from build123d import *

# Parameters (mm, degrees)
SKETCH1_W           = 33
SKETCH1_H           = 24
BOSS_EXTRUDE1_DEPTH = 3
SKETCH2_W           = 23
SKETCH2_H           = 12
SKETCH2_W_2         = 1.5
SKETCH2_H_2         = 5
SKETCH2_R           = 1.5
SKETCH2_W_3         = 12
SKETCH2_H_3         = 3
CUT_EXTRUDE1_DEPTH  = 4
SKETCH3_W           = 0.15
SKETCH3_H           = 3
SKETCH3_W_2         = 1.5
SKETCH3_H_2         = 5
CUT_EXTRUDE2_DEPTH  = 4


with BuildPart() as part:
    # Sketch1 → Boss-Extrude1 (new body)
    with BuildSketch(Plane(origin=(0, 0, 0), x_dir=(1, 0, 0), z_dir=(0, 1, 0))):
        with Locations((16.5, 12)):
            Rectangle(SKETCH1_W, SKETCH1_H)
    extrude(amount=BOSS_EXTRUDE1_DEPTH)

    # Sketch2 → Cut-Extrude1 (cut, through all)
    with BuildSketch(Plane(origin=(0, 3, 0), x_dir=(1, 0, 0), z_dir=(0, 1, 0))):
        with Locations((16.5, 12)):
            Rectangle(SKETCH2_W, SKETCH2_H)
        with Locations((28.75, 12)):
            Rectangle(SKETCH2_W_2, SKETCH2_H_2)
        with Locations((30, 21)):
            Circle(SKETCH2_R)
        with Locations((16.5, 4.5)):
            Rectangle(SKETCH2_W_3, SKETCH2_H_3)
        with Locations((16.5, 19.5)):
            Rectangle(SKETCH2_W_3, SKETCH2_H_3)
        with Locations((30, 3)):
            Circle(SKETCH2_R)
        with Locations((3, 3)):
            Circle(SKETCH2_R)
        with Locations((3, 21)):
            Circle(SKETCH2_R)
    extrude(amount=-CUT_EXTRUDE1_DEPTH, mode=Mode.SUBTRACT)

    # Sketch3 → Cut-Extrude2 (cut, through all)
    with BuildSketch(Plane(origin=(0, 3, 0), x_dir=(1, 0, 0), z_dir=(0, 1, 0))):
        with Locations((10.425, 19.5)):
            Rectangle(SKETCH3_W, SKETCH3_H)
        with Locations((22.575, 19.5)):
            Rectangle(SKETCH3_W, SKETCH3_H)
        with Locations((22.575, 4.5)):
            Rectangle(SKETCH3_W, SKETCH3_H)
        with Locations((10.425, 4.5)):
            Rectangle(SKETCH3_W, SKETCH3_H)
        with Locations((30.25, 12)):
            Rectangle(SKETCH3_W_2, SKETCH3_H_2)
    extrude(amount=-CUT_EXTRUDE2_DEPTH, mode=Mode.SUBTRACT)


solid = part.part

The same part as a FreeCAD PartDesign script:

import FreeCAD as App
import Part
import Sketcher
from FreeCAD import Vector
Q = App.Units.Quantity


def add_polygon(sketch, points):
    """Adds a closed chain of lines whose ends are joined by coincident constraints."""
    first, n = sketch.GeometryCount, len(points)
    for a, b in zip(points, points[1:] + points[:1]):
        sketch.addGeometry(Part.LineSegment(App.Vector(*a, 0), App.Vector(*b, 0)), False)
    for i in range(n):
        sketch.addConstraint(Sketcher.Constraint("Coincident", first + i, 2, first + (i + 1) % n, 1))

doc = App.newDocument("Part")
body = doc.addObject("PartDesign::Body", "Body")

# Sketch on XZ plane
sketch1 = body.newObject("Sketcher::SketchObject", "Sketch")
sketch1.AttachmentSupport = (doc.getObject("XZ_Plane"), [""])
sketch1.MapMode = "FlatFace"
add_polygon(sketch1, [(0, -24), (0, 0), (33, 0), (33, -24)])  # lines 0-3
sketch1.addConstraint(Sketcher.Constraint("Vertical", 0))
sketch1.addConstraint(Sketcher.Constraint("Horizontal", 1))
sketch1.addConstraint(Sketcher.Constraint("Vertical", 2))
sketch1.addConstraint(Sketcher.Constraint("Horizontal", 3))
sketch1.addConstraint(Sketcher.Constraint("Coincident", 0, 2, -1, 1))
sketch1.addConstraint(Sketcher.Constraint("DistanceX", 1, 1, 1, 2, Q("33 mm")))
sketch1.addConstraint(Sketcher.Constraint("DistanceY", 0, 1, 0, 2, Q("24 mm")))
pad1 = body.newObject("PartDesign::Pad", "Pad")
pad1.Profile = sketch1
pad1.Length = 3
pad1.Reversed = True

# Sketch on XZ plane
sketch2 = body.newObject("Sketcher::SketchObject", "Sketch001")
sketch2.AttachmentSupport = (doc.getObject("XZ_Plane"), [""])
sketch2.MapMode = "FlatFace"
sketch2.AttachmentOffset = App.Placement(Vector(0, 0, -3), App.Rotation())
add_polygon(sketch2, [(5, -18), (5, -6), (10.5, -6), (10.5, -3), (22.5, -3), (22.5, -6), (28, -6), (28, -9.5), (29.5, -9.5), (29.5, -14.5), (28, -14.5), (28, -18), (22.5, -18), (22.5, -21), (10.5, -21), (10.5, -18)])  # lines 0-15
sketch2.addGeometry(Part.Circle(Vector(30, -21, 0), Vector(0, 0, 1), 1.5), False)  # 16
sketch2.addGeometry(Part.Circle(Vector(30, -3, 0), Vector(0, 0, 1), 1.5), False)  # 17
sketch2.addGeometry(Part.Circle(Vector(3, -3, 0), Vector(0, 0, 1), 1.5), False)  # 18
sketch2.addGeometry(Part.Circle(Vector(3, -21, 0), Vector(0, 0, 1), 1.5), False)  # 19
sketch2.addConstraint(Sketcher.Constraint("Vertical", 0))
sketch2.addConstraint(Sketcher.Constraint("Horizontal", 1))
sketch2.addConstraint(Sketcher.Constraint("Vertical", 2))
sketch2.addConstraint(Sketcher.Constraint("Horizontal", 3))
sketch2.addConstraint(Sketcher.Constraint("Vertical", 4))
sketch2.addConstraint(Sketcher.Constraint("Horizontal", 5))
sketch2.addConstraint(Sketcher.Constraint("Vertical", 6))
sketch2.addConstraint(Sketcher.Constraint("Horizontal", 7))
sketch2.addConstraint(Sketcher.Constraint("Vertical", 8))
sketch2.addConstraint(Sketcher.Constraint("Horizontal", 9))
sketch2.addConstraint(Sketcher.Constraint("Vertical", 10))
sketch2.addConstraint(Sketcher.Constraint("Horizontal", 11))
sketch2.addConstraint(Sketcher.Constraint("Vertical", 12))
sketch2.addConstraint(Sketcher.Constraint("Horizontal", 13))
sketch2.addConstraint(Sketcher.Constraint("Vertical", 14))
sketch2.addConstraint(Sketcher.Constraint("Horizontal", 15))
sketch2.addConstraint(Sketcher.Constraint("Equal", 16, 17))
sketch2.addConstraint(Sketcher.Constraint("Equal", 17, 18))
sketch2.addConstraint(Sketcher.Constraint("Equal", 18, 19))
sketch2.addConstraint(Sketcher.Constraint("Horizontal", 17, 3, 18, 3))
sketch2.addConstraint(Sketcher.Constraint("Horizontal", 16, 3, 19, 3))
sketch2.addConstraint(Sketcher.Constraint("Horizontal", 18, 3, 2, 2))
sketch2.addConstraint(Sketcher.Constraint("Horizontal", 1, 2, 4, 2))
sketch2.addConstraint(Sketcher.Constraint("Horizontal", 19, 3, 12, 2))
sketch2.addConstraint(Sketcher.Constraint("Horizontal", 11, 2, 14, 2))
sketch2.addConstraint(Sketcher.Constraint("Vertical", 16, 3, 17, 3))
sketch2.addConstraint(Sketcher.Constraint("Vertical", 18, 3, 19, 3))
sketch2.addConstraint(Sketcher.Constraint("Vertical", 6, 2, 9, 2))
sketch2.addConstraint(Sketcher.Constraint("Vertical", 4, 2, 11, 2))
sketch2.addConstraint(Sketcher.Constraint("Vertical", 2, 2, 13, 2))
sketch2.addConstraint(Sketcher.Constraint("Equal", 1, 5))
sketch2.addConstraint(Sketcher.Constraint("Equal", 13, 0))
sketch2.addConstraint(Sketcher.Constraint("Equal", 6, 10))
sketch2.addConstraint(Sketcher.Constraint("Equal", 4, 12))
sketch2.addConstraint(Sketcher.Constraint("Diameter", 16, Q("3 mm")))
sketch2.addConstraint(Sketcher.Constraint("DistanceX", 3, 1, 3, 2, Q("12 mm")))
sketch2.addConstraint(Sketcher.Constraint("DistanceY", 2, 1, 2, 2, Q("3 mm")))
sketch2.addConstraint(Sketcher.Constraint("DistanceY", 8, 2, 8, 1, Q("5 mm")))
sketch2.addConstraint(Sketcher.Constraint("DistanceX", 1, 1, 1, 2, Q("5.5 mm")))
sketch2.addConstraint(Sketcher.Constraint("DistanceX", 7, 1, 7, 2, Q("1.5 mm")))
sketch2.addConstraint(Sketcher.Constraint("DistanceX", -1, 1, 16, 3, Q("30 mm")))
sketch2.addConstraint(Sketcher.Constraint("DistanceY", 16, 3, -1, 1, Q("21 mm")))
sketch2.addConstraint(Sketcher.Constraint("DistanceX", -1, 1, 18, 3, Q("3 mm")))
sketch2.addConstraint(Sketcher.Constraint("DistanceX", -1, 1, 0, 2, Q("5 mm")))
pocket1 = body.newObject("PartDesign::Pocket", "Pocket")
pocket1.Profile = sketch2
pocket1.Type = "ThroughAll"
pocket1.Reversed = True

# Sketch on XZ plane
sketch3 = body.newObject("Sketcher::SketchObject", "Sketch002")
sketch3.AttachmentSupport = (doc.getObject("XZ_Plane"), [""])
sketch3.MapMode = "FlatFace"
sketch3.AttachmentOffset = App.Placement(Vector(0, 0, -3), App.Rotation())
add_polygon(sketch3, [(10.35, -21), (10.35, -18), (10.5, -18), (10.5, -21)])  # lines 0-3
add_polygon(sketch3, [(22.5, -21), (22.5, -18), (22.65, -18), (22.65, -21)])  # lines 4-7
add_polygon(sketch3, [(22.5, -6), (22.5, -3), (22.65, -3), (22.65, -6)])  # lines 8-11
add_polygon(sketch3, [(10.35, -6), (10.35, -3), (10.5, -3), (10.5, -6)])  # lines 12-15
add_polygon(sketch3, [(29.5, -14.5), (29.5, -9.5), (31, -9.5), (31, -14.5)])  # lines 16-19
sketch3.addConstraint(Sketcher.Constraint("Vertical", 0))
sketch3.addConstraint(Sketcher.Constraint("Horizontal", 1))
sketch3.addConstraint(Sketcher.Constraint("Vertical", 2))
sketch3.addConstraint(Sketcher.Constraint("Horizontal", 3))
sketch3.addConstraint(Sketcher.Constraint("Vertical", 4))
sketch3.addConstraint(Sketcher.Constraint("Horizontal", 5))
sketch3.addConstraint(Sketcher.Constraint("Vertical", 6))
sketch3.addConstraint(Sketcher.Constraint("Horizontal", 7))
sketch3.addConstraint(Sketcher.Constraint("Vertical", 8))
sketch3.addConstraint(Sketcher.Constraint("Horizontal", 9))
sketch3.addConstraint(Sketcher.Constraint("Vertical", 10))
sketch3.addConstraint(Sketcher.Constraint("Horizontal", 11))
sketch3.addConstraint(Sketcher.Constraint("Vertical", 12))
sketch3.addConstraint(Sketcher.Constraint("Horizontal", 13))
sketch3.addConstraint(Sketcher.Constraint("Vertical", 14))
sketch3.addConstraint(Sketcher.Constraint("Horizontal", 15))
sketch3.addConstraint(Sketcher.Constraint("Vertical", 16))
sketch3.addConstraint(Sketcher.Constraint("Horizontal", 17))
sketch3.addConstraint(Sketcher.Constraint("Vertical", 18))
sketch3.addConstraint(Sketcher.Constraint("Horizontal", 19))
sketch3.addConstraint(Sketcher.Constraint("Horizontal", 1, 2, 4, 2))
sketch3.addConstraint(Sketcher.Constraint("Horizontal", 3, 2, 6, 2))
sketch3.addConstraint(Sketcher.Constraint("Horizontal", 9, 2, 12, 2))
sketch3.addConstraint(Sketcher.Constraint("Horizontal", 11, 2, 14, 2))
sketch3.addConstraint(Sketcher.Constraint("Vertical", 7, 2, 8, 2))
sketch3.addConstraint(Sketcher.Constraint("Vertical", 6, 2, 9, 2))
sketch3.addConstraint(Sketcher.Constraint("Vertical", 3, 2, 12, 2))
sketch3.addConstraint(Sketcher.Constraint("Vertical", 2, 2, 13, 2))
sketch3.addConstraint(Sketcher.Constraint("Equal", 3, 5))
sketch3.addConstraint(Sketcher.Constraint("Equal", 6, 8))
sketch3.addConstraint(Sketcher.Constraint("DistanceY", 0, 1, 0, 2, Q("3 mm")))
sketch3.addConstraint(Sketcher.Constraint("DistanceY", 16, 1, 16, 2, Q("5 mm")))
sketch3.addConstraint(Sketcher.Constraint("DistanceX", 17, 1, 17, 2, Q("1.5 mm")))
sketch3.addConstraint(Sketcher.Constraint("DistanceY", 0, 2, -1, 1, Q("18 mm")))
sketch3.addConstraint(Sketcher.Constraint("DistanceY", 8, 2, -1, 1, Q("3 mm")))
sketch3.addConstraint(Sketcher.Constraint("DistanceX", -1, 1, 17, 2, Q("31 mm")))
sketch3.addConstraint(Sketcher.Constraint("DistanceX", 1, 2, 4, 2, Q("12 mm")))
sketch3.addConstraint(Sketcher.Constraint("DistanceX", 11, 2, 16, 2, Q("7 mm")))
sketch3.addConstraint(Sketcher.Constraint("DistanceX", 1, 1, 1, 2, Q("0.15 mm")))
sketch3.addConstraint(Sketcher.Constraint("DistanceY", 16, 2, -1, 1, Q("9.5 mm")))
pocket2 = body.newObject("PartDesign::Pocket", "Pocket001")
pocket2.Profile = sketch3
pocket2.Type = "ThroughAll"
pocket2.Reversed = True

doc.recompute()
